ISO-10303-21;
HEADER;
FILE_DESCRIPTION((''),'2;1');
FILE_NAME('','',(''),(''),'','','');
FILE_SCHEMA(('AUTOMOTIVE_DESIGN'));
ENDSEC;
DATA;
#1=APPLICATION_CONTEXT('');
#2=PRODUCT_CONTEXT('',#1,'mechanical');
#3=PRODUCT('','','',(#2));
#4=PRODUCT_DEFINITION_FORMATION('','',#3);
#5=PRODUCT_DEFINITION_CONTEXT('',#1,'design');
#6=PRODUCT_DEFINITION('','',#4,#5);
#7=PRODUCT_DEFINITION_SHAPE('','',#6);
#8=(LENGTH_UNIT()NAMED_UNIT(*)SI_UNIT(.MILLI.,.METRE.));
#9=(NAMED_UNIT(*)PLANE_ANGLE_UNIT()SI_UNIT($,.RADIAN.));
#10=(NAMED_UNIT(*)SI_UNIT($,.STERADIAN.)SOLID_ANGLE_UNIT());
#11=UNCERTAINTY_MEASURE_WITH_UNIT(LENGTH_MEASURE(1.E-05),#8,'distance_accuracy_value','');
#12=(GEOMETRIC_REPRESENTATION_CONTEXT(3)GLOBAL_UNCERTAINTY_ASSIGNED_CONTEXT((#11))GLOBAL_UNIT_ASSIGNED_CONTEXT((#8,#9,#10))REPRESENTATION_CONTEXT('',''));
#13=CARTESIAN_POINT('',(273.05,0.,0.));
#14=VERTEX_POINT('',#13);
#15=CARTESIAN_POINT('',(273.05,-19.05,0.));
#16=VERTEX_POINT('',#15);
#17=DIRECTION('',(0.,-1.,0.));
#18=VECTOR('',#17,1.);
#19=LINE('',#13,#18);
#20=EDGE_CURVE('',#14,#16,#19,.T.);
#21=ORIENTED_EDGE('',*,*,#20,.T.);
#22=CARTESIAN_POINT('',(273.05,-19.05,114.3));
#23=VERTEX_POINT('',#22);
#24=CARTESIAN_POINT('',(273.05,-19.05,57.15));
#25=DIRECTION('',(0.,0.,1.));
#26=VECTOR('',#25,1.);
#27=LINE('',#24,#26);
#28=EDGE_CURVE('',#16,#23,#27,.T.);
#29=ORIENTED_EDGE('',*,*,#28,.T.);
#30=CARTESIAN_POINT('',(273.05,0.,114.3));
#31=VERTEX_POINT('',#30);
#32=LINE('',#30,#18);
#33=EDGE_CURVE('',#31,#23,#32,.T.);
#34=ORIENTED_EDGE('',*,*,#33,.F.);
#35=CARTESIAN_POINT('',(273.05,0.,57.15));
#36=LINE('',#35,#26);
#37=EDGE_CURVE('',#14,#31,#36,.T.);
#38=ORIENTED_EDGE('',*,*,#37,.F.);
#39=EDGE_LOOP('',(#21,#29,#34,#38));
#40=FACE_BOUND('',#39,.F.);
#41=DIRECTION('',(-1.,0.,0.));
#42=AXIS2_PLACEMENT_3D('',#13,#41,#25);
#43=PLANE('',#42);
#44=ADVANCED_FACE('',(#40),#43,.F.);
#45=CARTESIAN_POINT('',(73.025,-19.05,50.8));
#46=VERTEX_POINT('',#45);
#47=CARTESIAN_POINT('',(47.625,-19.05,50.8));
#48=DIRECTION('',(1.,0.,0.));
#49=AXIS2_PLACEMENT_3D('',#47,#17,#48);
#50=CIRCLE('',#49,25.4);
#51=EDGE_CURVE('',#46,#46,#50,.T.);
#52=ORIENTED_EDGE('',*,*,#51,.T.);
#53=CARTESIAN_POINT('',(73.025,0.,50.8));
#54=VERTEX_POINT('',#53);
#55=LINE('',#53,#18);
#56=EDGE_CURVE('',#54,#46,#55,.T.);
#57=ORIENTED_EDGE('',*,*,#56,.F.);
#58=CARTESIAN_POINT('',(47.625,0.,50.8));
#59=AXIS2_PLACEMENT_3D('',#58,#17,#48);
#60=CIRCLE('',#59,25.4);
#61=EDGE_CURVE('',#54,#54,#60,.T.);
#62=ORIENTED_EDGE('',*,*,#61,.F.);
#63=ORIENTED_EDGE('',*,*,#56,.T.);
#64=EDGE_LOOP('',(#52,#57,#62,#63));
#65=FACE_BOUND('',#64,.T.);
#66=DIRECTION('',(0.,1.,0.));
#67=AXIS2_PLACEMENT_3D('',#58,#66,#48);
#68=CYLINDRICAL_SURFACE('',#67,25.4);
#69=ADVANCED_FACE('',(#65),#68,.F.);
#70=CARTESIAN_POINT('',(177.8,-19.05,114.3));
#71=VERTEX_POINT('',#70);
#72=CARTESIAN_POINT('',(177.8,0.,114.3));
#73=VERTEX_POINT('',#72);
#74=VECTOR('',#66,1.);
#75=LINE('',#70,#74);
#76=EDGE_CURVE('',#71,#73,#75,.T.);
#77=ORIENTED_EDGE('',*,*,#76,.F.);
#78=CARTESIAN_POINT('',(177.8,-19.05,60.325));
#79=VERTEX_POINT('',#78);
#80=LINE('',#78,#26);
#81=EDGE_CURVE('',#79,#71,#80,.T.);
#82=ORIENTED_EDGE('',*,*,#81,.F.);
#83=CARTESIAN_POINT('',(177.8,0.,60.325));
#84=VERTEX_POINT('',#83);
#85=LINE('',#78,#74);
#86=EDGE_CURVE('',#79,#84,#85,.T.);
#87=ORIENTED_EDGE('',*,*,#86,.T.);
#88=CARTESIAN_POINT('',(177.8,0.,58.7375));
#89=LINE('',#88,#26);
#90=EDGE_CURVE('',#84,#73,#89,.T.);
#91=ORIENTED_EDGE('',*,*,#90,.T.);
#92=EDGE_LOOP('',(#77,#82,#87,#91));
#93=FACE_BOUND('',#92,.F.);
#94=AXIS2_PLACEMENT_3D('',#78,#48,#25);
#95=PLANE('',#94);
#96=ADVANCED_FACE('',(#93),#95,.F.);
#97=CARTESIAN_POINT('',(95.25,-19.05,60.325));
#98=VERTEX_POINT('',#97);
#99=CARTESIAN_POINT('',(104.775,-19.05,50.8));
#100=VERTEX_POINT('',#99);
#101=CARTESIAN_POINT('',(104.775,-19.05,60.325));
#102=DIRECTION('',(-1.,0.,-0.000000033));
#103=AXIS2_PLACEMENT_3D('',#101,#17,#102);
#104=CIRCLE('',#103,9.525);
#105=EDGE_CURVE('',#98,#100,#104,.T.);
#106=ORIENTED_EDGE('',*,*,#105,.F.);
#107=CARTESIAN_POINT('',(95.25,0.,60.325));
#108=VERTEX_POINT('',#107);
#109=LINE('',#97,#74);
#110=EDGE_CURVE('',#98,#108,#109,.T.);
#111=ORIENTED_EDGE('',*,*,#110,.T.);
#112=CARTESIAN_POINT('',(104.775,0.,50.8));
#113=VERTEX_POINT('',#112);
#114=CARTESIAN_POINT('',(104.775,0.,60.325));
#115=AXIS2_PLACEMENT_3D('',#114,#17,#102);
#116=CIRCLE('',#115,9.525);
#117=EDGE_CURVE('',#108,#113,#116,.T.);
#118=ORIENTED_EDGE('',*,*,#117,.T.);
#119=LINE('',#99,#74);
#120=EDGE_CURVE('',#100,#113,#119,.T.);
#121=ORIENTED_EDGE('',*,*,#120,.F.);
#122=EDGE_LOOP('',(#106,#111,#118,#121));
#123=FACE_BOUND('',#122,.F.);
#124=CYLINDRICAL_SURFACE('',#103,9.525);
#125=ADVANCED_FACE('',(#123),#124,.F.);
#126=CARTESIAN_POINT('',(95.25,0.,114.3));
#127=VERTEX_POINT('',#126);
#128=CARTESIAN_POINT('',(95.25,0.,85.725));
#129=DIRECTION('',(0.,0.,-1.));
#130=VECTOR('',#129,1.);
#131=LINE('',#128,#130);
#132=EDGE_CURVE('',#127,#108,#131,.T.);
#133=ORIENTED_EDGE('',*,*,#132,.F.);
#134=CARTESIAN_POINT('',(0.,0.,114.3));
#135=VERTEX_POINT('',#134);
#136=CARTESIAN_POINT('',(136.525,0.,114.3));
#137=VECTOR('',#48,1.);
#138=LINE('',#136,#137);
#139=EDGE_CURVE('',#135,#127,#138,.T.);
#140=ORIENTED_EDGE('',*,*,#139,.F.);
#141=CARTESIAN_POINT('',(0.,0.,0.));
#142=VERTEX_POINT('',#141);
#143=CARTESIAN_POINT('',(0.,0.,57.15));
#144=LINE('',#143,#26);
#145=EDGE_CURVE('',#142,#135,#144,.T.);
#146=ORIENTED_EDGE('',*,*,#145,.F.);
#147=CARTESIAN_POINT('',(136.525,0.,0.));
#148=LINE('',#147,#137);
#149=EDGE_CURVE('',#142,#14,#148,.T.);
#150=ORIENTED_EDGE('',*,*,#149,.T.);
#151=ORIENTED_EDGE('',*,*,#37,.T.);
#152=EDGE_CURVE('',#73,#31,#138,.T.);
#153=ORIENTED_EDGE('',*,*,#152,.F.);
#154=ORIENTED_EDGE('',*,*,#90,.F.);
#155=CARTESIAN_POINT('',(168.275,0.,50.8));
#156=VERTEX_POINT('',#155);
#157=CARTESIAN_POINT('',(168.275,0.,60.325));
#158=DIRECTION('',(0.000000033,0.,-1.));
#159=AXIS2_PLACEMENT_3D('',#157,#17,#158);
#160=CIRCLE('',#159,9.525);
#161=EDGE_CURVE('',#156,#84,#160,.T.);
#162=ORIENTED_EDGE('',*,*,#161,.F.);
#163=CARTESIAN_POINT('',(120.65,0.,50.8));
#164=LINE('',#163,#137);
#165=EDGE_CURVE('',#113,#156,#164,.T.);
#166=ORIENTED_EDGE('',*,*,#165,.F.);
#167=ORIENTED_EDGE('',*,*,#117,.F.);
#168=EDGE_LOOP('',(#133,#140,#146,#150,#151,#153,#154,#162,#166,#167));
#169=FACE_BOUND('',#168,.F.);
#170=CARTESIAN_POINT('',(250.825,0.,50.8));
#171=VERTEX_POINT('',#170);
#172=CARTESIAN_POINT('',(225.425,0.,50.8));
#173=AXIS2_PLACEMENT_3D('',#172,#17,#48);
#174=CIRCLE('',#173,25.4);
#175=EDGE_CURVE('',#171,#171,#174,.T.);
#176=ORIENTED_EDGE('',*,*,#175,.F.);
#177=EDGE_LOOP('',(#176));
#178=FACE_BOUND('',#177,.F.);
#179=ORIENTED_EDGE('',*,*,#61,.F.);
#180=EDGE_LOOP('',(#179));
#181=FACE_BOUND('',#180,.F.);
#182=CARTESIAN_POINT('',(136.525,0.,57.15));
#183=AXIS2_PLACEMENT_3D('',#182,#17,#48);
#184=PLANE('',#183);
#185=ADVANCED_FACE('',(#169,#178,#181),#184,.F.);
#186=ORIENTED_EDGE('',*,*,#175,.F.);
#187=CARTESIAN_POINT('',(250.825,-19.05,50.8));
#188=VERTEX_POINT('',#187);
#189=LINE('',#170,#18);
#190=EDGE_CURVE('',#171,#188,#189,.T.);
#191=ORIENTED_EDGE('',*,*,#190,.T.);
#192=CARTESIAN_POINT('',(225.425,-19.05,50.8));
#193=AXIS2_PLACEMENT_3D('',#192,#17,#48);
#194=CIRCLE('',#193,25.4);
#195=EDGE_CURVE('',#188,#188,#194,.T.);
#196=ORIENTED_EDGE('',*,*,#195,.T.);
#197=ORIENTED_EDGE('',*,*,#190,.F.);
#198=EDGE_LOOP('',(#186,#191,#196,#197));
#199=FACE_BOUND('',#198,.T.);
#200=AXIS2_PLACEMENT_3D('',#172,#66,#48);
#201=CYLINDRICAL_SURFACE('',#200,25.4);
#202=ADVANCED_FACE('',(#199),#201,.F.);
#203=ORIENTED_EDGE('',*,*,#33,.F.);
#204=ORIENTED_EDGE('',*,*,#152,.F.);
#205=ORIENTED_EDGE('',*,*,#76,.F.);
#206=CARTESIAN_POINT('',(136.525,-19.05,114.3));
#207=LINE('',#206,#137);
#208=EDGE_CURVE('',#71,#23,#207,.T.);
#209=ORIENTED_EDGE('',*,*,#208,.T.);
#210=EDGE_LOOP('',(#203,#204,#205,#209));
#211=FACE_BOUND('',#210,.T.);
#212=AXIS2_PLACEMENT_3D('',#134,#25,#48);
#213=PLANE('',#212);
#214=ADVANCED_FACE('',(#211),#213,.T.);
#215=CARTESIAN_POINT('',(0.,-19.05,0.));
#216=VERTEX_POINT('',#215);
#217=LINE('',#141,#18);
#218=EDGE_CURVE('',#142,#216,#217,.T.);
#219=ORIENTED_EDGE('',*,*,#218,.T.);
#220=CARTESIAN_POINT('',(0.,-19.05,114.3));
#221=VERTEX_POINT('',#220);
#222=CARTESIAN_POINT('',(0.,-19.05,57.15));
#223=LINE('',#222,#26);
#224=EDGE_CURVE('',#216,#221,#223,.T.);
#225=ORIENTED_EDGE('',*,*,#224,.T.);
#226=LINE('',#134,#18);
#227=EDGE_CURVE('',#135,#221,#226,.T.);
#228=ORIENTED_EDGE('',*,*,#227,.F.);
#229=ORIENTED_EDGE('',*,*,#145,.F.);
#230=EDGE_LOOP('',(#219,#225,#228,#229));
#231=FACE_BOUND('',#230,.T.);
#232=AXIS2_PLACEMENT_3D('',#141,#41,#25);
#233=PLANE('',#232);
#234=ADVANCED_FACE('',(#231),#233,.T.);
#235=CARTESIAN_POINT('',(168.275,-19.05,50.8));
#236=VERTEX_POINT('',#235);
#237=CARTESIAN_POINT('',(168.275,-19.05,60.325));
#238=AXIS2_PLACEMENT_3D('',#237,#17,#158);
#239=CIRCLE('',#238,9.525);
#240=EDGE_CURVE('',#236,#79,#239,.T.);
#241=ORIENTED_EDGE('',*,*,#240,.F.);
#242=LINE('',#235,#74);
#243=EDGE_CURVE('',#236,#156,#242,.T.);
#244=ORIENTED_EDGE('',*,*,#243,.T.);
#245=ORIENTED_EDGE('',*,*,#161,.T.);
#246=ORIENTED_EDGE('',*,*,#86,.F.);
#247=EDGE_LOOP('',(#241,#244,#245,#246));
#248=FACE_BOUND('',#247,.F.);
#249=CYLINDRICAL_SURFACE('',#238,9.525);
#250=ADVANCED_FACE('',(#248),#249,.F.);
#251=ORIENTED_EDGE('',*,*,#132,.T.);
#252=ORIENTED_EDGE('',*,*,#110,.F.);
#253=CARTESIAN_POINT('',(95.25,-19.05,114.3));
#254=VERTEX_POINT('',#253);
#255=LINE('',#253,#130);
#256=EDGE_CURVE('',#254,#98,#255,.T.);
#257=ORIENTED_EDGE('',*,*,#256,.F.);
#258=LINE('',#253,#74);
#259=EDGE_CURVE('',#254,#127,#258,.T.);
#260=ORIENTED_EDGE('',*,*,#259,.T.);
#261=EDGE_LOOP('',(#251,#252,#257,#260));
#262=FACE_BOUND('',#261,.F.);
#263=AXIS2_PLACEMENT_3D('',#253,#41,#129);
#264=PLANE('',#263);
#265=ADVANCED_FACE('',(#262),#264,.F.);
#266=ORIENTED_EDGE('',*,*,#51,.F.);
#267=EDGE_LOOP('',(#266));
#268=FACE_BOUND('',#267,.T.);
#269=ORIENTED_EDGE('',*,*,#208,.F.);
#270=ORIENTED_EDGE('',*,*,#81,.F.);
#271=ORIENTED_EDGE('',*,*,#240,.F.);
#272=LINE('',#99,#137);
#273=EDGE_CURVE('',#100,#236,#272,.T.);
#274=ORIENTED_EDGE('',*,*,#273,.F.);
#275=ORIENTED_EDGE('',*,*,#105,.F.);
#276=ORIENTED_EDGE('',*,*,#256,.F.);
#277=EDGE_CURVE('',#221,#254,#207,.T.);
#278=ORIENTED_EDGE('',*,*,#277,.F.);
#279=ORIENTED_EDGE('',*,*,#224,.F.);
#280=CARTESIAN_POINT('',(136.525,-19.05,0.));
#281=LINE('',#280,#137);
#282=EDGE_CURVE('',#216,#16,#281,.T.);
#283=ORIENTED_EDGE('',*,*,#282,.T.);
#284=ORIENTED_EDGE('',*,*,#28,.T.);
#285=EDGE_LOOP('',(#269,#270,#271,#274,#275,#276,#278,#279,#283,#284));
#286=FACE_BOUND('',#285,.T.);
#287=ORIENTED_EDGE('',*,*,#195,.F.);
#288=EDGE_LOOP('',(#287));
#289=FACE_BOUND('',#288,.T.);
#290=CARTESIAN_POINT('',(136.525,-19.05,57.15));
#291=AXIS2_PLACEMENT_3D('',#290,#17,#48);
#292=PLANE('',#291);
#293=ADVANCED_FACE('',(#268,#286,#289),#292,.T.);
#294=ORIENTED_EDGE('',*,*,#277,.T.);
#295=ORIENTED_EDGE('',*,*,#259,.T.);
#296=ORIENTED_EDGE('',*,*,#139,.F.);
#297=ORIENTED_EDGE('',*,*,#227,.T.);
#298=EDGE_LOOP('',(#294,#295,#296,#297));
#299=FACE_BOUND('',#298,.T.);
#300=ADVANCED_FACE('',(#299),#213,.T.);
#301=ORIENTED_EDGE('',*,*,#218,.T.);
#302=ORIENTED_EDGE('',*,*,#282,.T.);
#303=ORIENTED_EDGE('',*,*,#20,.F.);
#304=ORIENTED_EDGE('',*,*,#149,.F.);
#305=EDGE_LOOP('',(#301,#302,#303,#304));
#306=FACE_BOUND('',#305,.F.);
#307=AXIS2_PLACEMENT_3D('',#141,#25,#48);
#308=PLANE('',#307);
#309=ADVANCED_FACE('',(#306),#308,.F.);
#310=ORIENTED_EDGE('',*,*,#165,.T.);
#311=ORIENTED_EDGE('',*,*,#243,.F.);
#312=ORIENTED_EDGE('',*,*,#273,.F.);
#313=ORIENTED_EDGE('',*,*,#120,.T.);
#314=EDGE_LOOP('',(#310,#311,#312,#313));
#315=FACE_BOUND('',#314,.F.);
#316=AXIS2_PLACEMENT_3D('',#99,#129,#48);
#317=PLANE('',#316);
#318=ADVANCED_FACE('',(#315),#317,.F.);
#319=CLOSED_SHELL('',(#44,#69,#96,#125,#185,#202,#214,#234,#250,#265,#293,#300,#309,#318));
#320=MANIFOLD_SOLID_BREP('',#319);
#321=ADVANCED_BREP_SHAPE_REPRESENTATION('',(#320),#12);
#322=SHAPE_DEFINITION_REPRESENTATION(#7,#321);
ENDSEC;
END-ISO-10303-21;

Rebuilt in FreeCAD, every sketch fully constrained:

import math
import FreeCAD as App
import Part
import Sketcher
from FreeCAD import Vector
Q = App.Units.Quantity

doc = App.newDocument("Part")
body = doc.addObject("PartDesign::Body", "Body")

# Sketch on XZ plane
sketch1 = body.newObject("Sketcher::SketchObject", "Sketch")
sketch1.AttachmentSupport = (doc.getObject("XZ_Plane"), [""])
sketch1.MapMode = "FlatFace"
sketch1.addGeometry([
    Part.LineSegment(Vector(0, 114, 0), Vector(0, 0, 0)),  # 0
    Part.LineSegment(Vector(0, 0, 0), Vector(273, 0, 0)),  # 1
    Part.LineSegment(Vector(273, 0, 0), Vector(273, 114, 0)),  # 2
    Part.LineSegment(Vector(273, 114, 0), Vector(0, 114, 0)),  # 3
    Part.Circle(Vector(48, 51, 0), Vector(0, 0, 1), 25),  # 4
    Part.Circle(Vector(225, 51, 0), Vector(0, 0, 1), 25),  # 5
], False)
sketch1.addConstraint([
    Sketcher.Constraint("Coincident", 0, 2, 1, 1),
    Sketcher.Constraint("Coincident", 1, 2, 2, 1),
    Sketcher.Constraint("Coincident", 2, 2, 3, 1),
    Sketcher.Constraint("Coincident", 3, 2, 0, 1),
    Sketcher.Constraint("Vertical", 0),
    Sketcher.Constraint("Horizontal", 1),
    Sketcher.Constraint("Vertical", 2),
    Sketcher.Constraint("Horizontal", 3),
    Sketcher.Constraint("Coincident", 0, 2, -1, 1),
    Sketcher.Constraint("Equal", 4, 5),
    Sketcher.Constraint("Horizontal", 4, 3, 5, 3),
    Sketcher.Constraint("Diameter", 4, Q("2 in")),
    Sketcher.Constraint("DistanceY", 0, 2, 0, 1, Q("4.5 in")),
    Sketcher.Constraint("DistanceY", -1, 1, 4, 3, Q("2 in")),
    Sketcher.Constraint("DistanceX", 4, 3, 5, 3, Q("7 in")),
    Sketcher.Constraint("DistanceX", 1, 1, 1, 2, Q("10.75 in")),
    Sketcher.Constraint("DistanceX", -1, 1, 4, 3, Q("1.875 in")),
])
pad1 = body.newObject("PartDesign::Pad", "Pad")
pad1.Profile = sketch1
pad1.Length = Q("0.75 in")

# Sketch on XZ plane
sketch2 = body.newObject("Sketcher::SketchObject", "Sketch001")
sketch2.AttachmentSupport = (doc.getObject("XZ_Plane"), [""])
sketch2.MapMode = "FlatFace"
sketch2.addGeometry([
    Part.Circle(Vector(48, 51, 0), Vector(0, 0, 1), 25),
    Part.Circle(Vector(225, 51, 0), Vector(0, 0, 1), 25),
], False)
sketch2.addConstraint([
    Sketcher.Constraint("Equal", 0, 1),
    Sketcher.Constraint("Horizontal", 0, 3, 1, 3),
    Sketcher.Constraint("Diameter", 0, Q("2 in")),
    Sketcher.Constraint("DistanceY", -1, 1, 0, 3, Q("2 in")),
    Sketcher.Constraint("DistanceX", 0, 3, 1, 3, Q("7 in")),
    Sketcher.Constraint("DistanceX", -1, 1, 0, 3, Q("1.875 in")),
])
pocket1 = body.newObject("PartDesign::Pocket", "Pocket")
pocket1.Profile = sketch2
pocket1.Length = Q("1 in")

# Sketch on XZ plane
sketch3 = body.newObject("Sketcher::SketchObject", "Sketch002")
sketch3.AttachmentSupport = (doc.getObject("XZ_Plane"), [""])
sketch3.MapMode = "FlatFace"
sketch3.AttachmentOffset = App.Placement(Vector(0, 0, 0.75 * 25.4), App.Rotation())
sketch3.addGeometry([
    Part.LineSegment(Vector(178, 114, 0), Vector(95, 114, 0)),  # 0
    Part.LineSegment(Vector(95, 114, 0), Vector(95, 60, 0)),  # 1
    Part.ArcOfCircle(Part.Circle(Vector(105, 60, 0), Vector(0, 0, 1), 10), math.radians(-180), math.radians(-90)),  # 2
    Part.LineSegment(Vector(105, 51, 0), Vector(168, 51, 0)),  # 3
    Part.ArcOfCircle(Part.Circle(Vector(168, 60, 0), Vector(0, 0, 1), 10), math.radians(-90), math.radians(0)),  # 4
    Part.LineSegment(Vector(178, 60, 0), Vector(178, 114, 0)),  # 5
], False)
sketch3.addConstraint([
    Sketcher.Constraint("Coincident", 0, 2, 1, 1),
    Sketcher.Constraint("Tangent", 1, 2, 2, 1),
    Sketcher.Constraint("Tangent", 2, 2, 3, 1),
    Sketcher.Constraint("Tangent", 3, 2, 4, 1),
    Sketcher.Constraint("Tangent", 4, 2, 5, 1),
    Sketcher.Constraint("Coincident", 5, 2, 0, 1),
    Sketcher.Constraint("Horizontal", 0),
    Sketcher.Constraint("Vertical", 1),
    Sketcher.Constraint("Horizontal", 3),
    Sketcher.Constraint("Vertical", 5),
    Sketcher.Constraint("Equal", 2, 4),
    Sketcher.Constraint("DistanceX", 3, 1, 3, 2, Q("2.5 in")),
    Sketcher.Constraint("DistanceY", -1, 1, 2, 2, Q("2 in")),
    Sketcher.Constraint("DistanceX", -1, 1, 4, 2, Q("7 in")),
    Sketcher.Constraint("Radius", 2, Q("0.375 in")),
    Sketcher.Constraint("DistanceY", -1, 1, 0, 2, Q("4.5 in")),
])
pocket2 = body.newObject("PartDesign::Pocket", "Pocket001")
pocket2.Profile = sketch3
pocket2.Length = Q("1 in")

doc.recompute()
